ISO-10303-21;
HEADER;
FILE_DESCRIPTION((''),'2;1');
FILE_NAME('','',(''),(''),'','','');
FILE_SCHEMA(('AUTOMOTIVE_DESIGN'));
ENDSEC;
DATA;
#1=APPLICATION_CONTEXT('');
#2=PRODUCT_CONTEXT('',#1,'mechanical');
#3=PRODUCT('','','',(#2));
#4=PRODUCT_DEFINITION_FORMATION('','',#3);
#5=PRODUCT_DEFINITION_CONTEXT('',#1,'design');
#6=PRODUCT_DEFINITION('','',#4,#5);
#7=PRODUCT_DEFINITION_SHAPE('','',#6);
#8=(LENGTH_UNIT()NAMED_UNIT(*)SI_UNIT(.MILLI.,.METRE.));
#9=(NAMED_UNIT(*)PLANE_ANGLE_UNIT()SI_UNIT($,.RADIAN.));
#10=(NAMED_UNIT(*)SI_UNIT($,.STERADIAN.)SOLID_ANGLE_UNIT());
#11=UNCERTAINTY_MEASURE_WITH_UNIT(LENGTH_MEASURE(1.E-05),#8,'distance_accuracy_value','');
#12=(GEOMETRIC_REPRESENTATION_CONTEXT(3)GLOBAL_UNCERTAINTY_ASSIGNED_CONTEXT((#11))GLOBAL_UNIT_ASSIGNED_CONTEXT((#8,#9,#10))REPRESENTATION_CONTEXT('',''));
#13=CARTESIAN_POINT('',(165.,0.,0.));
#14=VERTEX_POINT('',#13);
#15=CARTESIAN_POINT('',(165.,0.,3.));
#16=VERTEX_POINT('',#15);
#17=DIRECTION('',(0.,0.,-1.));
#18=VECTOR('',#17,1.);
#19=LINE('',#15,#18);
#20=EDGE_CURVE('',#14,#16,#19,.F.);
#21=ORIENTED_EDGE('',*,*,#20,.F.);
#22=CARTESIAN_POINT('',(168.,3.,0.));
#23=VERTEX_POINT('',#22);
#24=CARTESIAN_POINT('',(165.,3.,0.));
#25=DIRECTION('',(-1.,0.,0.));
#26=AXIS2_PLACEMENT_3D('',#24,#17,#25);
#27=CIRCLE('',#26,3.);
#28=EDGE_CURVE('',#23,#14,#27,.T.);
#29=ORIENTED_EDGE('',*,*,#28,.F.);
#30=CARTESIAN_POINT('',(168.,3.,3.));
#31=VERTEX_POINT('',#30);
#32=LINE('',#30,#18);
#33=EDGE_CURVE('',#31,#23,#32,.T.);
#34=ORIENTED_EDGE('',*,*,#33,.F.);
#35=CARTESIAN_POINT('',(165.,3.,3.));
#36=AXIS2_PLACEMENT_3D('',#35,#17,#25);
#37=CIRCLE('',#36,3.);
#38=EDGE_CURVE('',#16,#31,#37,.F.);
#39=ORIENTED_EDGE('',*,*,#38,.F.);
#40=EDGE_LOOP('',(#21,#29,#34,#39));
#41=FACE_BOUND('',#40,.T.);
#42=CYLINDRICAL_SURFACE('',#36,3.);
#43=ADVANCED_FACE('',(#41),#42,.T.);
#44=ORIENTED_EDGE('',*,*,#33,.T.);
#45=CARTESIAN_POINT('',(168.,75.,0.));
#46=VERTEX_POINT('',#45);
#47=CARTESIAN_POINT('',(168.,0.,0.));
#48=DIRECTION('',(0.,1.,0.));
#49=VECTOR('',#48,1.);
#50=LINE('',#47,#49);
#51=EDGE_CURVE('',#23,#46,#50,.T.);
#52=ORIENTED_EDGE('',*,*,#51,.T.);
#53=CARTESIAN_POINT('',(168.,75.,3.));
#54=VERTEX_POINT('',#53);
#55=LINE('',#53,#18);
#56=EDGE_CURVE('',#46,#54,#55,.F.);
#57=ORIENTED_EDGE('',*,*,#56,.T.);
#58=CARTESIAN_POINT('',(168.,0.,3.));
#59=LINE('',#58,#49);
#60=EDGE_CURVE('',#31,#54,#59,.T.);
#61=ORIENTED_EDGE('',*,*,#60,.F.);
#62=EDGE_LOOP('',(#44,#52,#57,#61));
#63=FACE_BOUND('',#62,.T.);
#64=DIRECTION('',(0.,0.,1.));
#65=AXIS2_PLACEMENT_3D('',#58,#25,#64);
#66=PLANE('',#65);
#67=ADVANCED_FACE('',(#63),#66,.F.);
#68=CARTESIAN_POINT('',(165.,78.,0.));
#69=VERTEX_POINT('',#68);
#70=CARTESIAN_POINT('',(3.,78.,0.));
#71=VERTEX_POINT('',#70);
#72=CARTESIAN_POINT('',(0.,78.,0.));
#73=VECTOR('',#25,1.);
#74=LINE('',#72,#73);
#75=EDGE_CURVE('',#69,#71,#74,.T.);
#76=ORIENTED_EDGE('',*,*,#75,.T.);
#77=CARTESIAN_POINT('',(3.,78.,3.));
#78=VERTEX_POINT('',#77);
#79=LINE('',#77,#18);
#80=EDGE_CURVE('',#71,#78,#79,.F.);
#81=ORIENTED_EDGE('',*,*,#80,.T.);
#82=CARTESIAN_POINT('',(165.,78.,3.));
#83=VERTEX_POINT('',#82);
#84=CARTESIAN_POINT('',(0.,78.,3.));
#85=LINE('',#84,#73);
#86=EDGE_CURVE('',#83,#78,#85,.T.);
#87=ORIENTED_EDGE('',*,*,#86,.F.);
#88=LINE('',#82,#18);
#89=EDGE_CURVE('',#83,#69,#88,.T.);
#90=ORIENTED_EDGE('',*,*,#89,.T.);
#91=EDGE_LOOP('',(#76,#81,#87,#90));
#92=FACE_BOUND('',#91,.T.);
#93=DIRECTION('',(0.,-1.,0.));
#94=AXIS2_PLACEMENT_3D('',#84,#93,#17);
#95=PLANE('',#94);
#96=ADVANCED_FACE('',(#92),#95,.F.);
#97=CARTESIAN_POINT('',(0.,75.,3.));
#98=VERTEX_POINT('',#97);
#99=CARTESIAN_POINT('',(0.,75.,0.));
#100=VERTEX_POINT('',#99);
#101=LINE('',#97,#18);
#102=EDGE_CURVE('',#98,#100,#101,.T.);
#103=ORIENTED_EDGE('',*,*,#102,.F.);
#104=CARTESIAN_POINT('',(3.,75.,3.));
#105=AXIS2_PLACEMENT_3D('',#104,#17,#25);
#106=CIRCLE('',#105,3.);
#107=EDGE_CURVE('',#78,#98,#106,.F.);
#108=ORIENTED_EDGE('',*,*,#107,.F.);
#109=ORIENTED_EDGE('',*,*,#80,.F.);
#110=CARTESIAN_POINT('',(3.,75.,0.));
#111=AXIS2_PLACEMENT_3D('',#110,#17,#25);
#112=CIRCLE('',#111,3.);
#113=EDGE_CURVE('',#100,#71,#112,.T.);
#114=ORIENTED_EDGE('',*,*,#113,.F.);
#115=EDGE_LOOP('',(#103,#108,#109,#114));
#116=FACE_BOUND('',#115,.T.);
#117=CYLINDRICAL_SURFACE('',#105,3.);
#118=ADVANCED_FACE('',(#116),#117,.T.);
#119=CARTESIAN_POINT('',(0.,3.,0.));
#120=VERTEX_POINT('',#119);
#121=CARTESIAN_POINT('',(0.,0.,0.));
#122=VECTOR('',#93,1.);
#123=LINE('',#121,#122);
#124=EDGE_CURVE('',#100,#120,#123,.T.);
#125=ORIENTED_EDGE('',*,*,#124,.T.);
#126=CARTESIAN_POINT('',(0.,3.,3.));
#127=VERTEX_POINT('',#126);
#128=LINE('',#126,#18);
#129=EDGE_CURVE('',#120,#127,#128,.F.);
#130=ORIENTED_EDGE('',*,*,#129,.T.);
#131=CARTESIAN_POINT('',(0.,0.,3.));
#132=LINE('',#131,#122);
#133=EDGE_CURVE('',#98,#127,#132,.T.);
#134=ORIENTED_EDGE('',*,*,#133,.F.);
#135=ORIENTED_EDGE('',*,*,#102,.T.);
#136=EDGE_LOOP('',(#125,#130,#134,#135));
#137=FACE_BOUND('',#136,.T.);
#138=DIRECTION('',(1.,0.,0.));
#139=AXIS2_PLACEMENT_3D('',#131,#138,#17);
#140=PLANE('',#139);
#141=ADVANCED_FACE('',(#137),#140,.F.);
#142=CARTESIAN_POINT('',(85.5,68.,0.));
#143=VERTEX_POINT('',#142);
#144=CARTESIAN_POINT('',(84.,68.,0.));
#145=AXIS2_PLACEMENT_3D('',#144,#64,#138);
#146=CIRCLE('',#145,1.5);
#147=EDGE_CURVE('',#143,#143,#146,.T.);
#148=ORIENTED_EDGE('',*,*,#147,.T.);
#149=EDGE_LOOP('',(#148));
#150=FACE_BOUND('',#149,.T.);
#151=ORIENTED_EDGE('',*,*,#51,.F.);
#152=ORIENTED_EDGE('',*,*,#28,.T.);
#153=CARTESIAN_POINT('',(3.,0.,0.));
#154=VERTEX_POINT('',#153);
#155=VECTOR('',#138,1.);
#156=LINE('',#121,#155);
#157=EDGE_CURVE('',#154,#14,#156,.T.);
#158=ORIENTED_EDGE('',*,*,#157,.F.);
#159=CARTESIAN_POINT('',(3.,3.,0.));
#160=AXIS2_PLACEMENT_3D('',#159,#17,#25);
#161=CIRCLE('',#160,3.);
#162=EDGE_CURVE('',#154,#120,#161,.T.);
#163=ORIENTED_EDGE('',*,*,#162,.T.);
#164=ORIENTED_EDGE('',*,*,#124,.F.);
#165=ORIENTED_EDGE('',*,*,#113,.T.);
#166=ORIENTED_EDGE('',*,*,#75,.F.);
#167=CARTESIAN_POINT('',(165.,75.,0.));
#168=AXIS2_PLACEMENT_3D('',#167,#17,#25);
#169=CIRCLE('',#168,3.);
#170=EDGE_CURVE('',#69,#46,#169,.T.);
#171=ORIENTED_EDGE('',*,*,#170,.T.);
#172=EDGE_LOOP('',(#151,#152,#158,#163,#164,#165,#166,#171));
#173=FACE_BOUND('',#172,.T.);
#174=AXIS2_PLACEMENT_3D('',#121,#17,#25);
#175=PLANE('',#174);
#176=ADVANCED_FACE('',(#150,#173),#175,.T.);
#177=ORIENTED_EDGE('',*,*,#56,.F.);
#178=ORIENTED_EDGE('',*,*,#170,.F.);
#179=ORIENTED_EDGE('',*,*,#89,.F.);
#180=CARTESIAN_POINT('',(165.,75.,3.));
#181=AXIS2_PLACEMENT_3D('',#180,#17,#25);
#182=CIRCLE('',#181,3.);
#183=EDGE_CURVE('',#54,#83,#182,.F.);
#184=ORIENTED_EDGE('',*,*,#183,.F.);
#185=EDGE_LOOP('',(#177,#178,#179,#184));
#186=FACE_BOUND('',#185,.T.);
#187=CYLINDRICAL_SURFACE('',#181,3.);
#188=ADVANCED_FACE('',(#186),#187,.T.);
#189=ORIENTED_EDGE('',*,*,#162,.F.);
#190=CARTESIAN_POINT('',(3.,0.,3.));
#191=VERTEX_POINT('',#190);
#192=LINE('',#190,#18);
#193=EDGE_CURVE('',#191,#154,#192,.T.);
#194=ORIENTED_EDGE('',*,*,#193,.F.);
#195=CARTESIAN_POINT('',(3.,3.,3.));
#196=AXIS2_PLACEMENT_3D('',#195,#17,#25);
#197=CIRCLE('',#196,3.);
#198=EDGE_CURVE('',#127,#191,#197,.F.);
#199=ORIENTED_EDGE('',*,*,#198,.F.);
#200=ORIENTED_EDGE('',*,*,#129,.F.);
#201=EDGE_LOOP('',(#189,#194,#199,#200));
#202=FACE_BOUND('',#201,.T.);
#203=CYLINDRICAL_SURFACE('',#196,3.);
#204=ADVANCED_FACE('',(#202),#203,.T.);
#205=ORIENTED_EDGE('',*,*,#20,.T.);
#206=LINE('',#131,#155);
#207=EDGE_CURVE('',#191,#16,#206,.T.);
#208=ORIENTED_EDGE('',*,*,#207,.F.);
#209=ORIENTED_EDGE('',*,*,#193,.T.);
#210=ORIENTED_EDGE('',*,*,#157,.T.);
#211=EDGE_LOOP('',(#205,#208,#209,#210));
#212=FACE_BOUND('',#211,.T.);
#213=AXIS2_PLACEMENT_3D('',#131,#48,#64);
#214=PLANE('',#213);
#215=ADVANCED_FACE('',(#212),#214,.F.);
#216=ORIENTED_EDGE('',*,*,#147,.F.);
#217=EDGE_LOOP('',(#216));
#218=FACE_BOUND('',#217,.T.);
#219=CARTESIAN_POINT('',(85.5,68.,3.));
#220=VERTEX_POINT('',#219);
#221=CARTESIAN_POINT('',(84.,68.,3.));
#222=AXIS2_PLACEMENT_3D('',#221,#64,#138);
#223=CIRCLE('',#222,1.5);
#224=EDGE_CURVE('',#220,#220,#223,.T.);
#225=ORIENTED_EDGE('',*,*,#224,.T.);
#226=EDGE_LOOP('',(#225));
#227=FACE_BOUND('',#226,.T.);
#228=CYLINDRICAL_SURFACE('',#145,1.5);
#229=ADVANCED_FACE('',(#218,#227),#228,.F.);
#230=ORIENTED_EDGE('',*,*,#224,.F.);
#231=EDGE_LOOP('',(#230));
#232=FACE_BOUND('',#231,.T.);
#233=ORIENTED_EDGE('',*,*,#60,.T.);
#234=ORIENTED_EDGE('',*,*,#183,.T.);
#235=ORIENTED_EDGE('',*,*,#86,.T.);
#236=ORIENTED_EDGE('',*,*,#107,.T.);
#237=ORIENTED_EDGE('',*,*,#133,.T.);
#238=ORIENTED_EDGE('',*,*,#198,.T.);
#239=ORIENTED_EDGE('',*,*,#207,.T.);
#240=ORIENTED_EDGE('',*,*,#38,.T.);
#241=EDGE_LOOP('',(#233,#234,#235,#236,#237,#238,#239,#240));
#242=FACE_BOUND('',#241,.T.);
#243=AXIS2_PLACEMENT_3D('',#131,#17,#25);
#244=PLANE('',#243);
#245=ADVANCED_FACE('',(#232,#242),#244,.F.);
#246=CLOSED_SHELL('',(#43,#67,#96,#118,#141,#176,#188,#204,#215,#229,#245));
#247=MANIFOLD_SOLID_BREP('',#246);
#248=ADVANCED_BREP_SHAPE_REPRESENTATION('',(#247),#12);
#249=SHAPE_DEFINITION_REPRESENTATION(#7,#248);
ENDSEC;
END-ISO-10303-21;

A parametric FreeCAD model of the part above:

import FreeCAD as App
import Part
import Sketcher
Q = App.Units.Quantity


def edges_at(feature, points):
    """Names of the edges that pass closest to the given points."""
    edges = feature.Shape.Edges
    near = lambda p: min(range(len(edges)), key=lambda i: edges[i].distToShape(Part.Vertex(*p))[0])
    return sorted({f"Edge{near(p) + 1}" for p in points})


def add_polygon(sketch, points):
    """Adds a closed chain of lines whose ends are joined by coincident constraints."""
    first, n = sketch.GeometryCount, len(points)
    for a, b in zip(points, points[1:] + points[:1]):
        sketch.addGeometry(Part.LineSegment(App.Vector(*a, 0), App.Vector(*b, 0)), False)
    for i in range(n):
        sketch.addConstraint(Sketcher.Constraint("Coincident", first + i, 2, first + (i + 1) % n, 1))

doc = App.newDocument("Part")
params = doc.addObject("Spreadsheet::Sheet", "Params")
for row, (alias, value) in enumerate([
    ("sketch1_width", "168 mm"),
    ("sketch1_height", "78 mm"),
    ("pad1_length", "3 mm"),
    ("fillet_radius", "3 mm"),
    ("sketch2_diameter", "3 mm"),
], start=1):
    params.set(f"A{row}", alias)
    params.set(f"B{row}", "=" + value)
    params.setAlias(f"B{row}", alias)

body = doc.addObject("PartDesign::Body", "Body")

# Sketch on XY plane
sketch1 = body.newObject("Sketcher::SketchObject", "Sketch")
sketch1.AttachmentSupport = (doc.getObject("XY_Plane"), [""])
sketch1.MapMode = "FlatFace"
add_polygon(sketch1, [(0, 78), (0, 0), (168, 0), (168, 78)])  # lines 0-3
sketch1.addConstraint([
    Sketcher.Constraint("Vertical", 0),
    Sketcher.Constraint("Horizontal", 1),
    Sketcher.Constraint("Vertical", 2),
    Sketcher.Constraint("Horizontal", 3),
    Sketcher.Constraint("Coincident", 0, 2, -1, 1),
    Sketcher.Constraint("DistanceX", 1, 1, 1, 2, Q("168 mm")),
    Sketcher.Constraint("DistanceY", 0, 2, 0, 1, Q("78 mm")),
])
sketch1.setExpression("Constraints[9]", "Params.sketch1_width")
sketch1.setExpression("Constraints[10]", "Params.sketch1_height")
pad1 = body.newObject("PartDesign::Pad", "Pad")
pad1.Profile = sketch1
pad1.setExpression("Length", "Params.pad1_length")
doc.recompute()

fillet = body.newObject("PartDesign::Fillet", "Fillet")
fillet.Base = (pad1, edges_at(pad1, [
    (0, 78, 1.5),
    (168, 78, 1.5),
    (168, 0, 1.5),
    (0, 0, 1.5),
]))
fillet.setExpression("Radius", "Params.fillet_radius")

# Sketch on XY plane
sketch2 = body.newObject("Sketcher::SketchObject", "Sketch001")
sketch2.AttachmentSupport = (doc.getObject("XY_Plane"), [""])
sketch2.MapMode = "FlatFace"
sketch2.AttachmentOffset = App.Placement(App.Vector(0, 0, 3), App.Rotation())
sketch2.addGeometry(Part.Circle(App.Vector(84, 68, 0), App.Vector(0, 0, 1), 1.5), False)
sketch2.addConstraint([
    Sketcher.Constraint("Diameter", 0, Q("3 mm")),
    Sketcher.Constraint("DistanceX", -1, 1, 0, 3, Q("84 mm")),
    Sketcher.Constraint("DistanceY", -1, 1, 0, 3, Q("68 mm")),
])
sketch2.setExpression("Constraints[0]", "Params.sketch2_diameter")
pocket1 = body.newObject("PartDesign::Pocket", "Pocket")
pocket1.Profile = sketch2
pocket1.Type = "ThroughAll"

doc.recompute()
